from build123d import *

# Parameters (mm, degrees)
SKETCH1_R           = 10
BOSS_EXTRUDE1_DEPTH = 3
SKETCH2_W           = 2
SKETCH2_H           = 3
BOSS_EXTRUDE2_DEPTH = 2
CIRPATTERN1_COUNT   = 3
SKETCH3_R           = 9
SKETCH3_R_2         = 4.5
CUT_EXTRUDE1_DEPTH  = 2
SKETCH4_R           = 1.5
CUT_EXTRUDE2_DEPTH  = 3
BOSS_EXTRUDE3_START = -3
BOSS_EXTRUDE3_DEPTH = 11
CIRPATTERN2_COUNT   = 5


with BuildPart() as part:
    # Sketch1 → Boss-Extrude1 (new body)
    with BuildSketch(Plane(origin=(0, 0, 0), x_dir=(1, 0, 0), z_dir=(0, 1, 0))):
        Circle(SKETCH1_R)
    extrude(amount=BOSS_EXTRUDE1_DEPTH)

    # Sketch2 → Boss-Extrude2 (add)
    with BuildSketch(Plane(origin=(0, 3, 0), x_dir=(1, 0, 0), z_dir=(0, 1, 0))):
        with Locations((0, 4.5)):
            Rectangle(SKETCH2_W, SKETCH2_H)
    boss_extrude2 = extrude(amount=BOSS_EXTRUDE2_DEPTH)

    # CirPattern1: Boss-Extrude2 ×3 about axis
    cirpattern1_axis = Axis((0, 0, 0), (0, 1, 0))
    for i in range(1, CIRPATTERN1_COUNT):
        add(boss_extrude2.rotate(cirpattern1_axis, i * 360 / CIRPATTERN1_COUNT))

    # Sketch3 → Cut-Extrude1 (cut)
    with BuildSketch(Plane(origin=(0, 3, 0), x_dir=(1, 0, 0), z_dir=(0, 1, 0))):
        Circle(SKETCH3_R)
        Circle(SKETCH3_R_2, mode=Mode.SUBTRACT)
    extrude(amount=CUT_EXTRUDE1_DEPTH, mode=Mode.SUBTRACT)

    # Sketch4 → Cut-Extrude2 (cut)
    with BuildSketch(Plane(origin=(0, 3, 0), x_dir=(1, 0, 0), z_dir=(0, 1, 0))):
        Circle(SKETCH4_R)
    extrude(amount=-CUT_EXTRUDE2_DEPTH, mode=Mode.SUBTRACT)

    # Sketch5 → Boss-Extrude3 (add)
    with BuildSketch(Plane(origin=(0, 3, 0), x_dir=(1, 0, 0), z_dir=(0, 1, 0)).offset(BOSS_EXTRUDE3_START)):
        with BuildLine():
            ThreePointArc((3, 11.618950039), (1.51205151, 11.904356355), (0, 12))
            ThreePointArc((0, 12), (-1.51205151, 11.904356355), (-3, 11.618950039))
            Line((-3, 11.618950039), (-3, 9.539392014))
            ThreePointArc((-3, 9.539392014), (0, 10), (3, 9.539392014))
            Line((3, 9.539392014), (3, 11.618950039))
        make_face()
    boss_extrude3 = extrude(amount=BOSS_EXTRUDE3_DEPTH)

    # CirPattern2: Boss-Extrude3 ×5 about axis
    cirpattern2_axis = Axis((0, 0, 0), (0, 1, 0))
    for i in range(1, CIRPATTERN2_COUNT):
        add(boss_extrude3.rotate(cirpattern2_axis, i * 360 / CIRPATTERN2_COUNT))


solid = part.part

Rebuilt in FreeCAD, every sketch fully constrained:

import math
import FreeCAD as App
import Part
import Sketcher

doc = App.newDocument("Part")
body = doc.addObject("PartDesign::Body", "Body")

# Sketch on XZ plane
sketch1 = body.newObject("Sketcher::SketchObject", "Sketch")
sketch1.AttachmentSupport = (doc.getObject("XZ_Plane"), [""])
sketch1.MapMode = "FlatFace"
sketch1.addGeometry(Part.Circle(App.Vector(0, 0, 0), App.Vector(0, 0, 1), 10), False)
sketch1.addConstraint([
    Sketcher.Constraint("Coincident", 0, 3, -1, 1),
    Sketcher.Constraint("Diameter", 0, 20.0),
])
pad1 = body.newObject("PartDesign::Pad", "Pad")
pad1.Profile = sketch1
pad1.Length = 3
pad1.Reversed = True

# Sketch on XZ plane
sketch2 = body.newObject("Sketcher::SketchObject", "Sketch001")
sketch2.AttachmentSupport = (doc.getObject("XZ_Plane"), [""])
sketch2.MapMode = "FlatFace"
sketch2.AttachmentOffset = App.Placement(App.Vector(0, 0, -3), App.Rotation())
sketch2.addGeometry([
    Part.LineSegment(App.Vector(-1, -6, 0), App.Vector(-1, -3, 0)),
    Part.LineSegment(App.Vector(-1, -3, 0), App.Vector(1, -3, 0)),
    Part.LineSegment(App.Vector(1, -3, 0), App.Vector(1, -6, 0)),
    Part.LineSegment(App.Vector(1, -6, 0), App.Vector(-1, -6, 0)),
], False)
sketch2.addConstraint([
    Sketcher.Constraint("Coincident", 0, 2, 1, 1),
    Sketcher.Constraint("Coincident", 1, 2, 2, 1),
    Sketcher.Constraint("Coincident", 2, 2, 3, 1),
    Sketcher.Constraint("Coincident", 3, 2, 0, 1),
    Sketcher.Constraint("Vertical", 0),
    Sketcher.Constraint("Horizontal", 1),
    Sketcher.Constraint("Vertical", 2),
    Sketcher.Constraint("Horizontal", 3),
    Sketcher.Constraint("DistanceX", 1, 1, 1, 2, 2.0),
    Sketcher.Constraint("DistanceY", 0, 1, 0, 2, 3.0),
    Sketcher.Constraint("DistanceX", 0, 2, -1, 1, 1.0),
    Sketcher.Constraint("DistanceY", 0, 2, -1, 1, 3.0),
])
pad2 = body.newObject("PartDesign::Pad", "Pad001")
pad2.Profile = sketch2
pad2.Length = 2
pad2.Reversed = True
doc.recompute()

polarpattern = body.newObject("PartDesign::PolarPattern", "PolarPattern")
polarpattern.Originals = [pad2]
polarpattern.Axis = (doc.getObject("Y_Axis"), [""])
polarpattern.Angle = 360
polarpattern.Occurrences = 3
body.Tip = polarpattern

# Sketch on XZ plane
sketch3 = body.newObject("Sketcher::SketchObject", "Sketch002")
sketch3.AttachmentSupport = (doc.getObject("XZ_Plane"), [""])
sketch3.MapMode = "FlatFace"
sketch3.AttachmentOffset = App.Placement(App.Vector(0, 0, -3), App.Rotation())
sketch3.addGeometry([
    Part.Circle(App.Vector(0, 0, 0), App.Vector(0, 0, 1), 9),
    Part.Circle(App.Vector(0, 0, 0), App.Vector(0, 0, 1), 4.5),
], False)
sketch3.addConstraint([
    Sketcher.Constraint("Coincident", 0, 3, -1, 1),
    Sketcher.Constraint("Coincident", 1, 3, -1, 1),
    Sketcher.Constraint("Diameter", 0, 18.0),
    Sketcher.Constraint("Diameter", 1, 9.0),
])
pocket1 = body.newObject("PartDesign::Pocket", "Pocket")
pocket1.Profile = sketch3
pocket1.Length = 2

# Sketch on XZ plane
sketch4 = body.newObject("Sketcher::SketchObject", "Sketch003")
sketch4.AttachmentSupport = (doc.getObject("XZ_Plane"), [""])
sketch4.MapMode = "FlatFace"
sketch4.AttachmentOffset = App.Placement(App.Vector(0, 0, -3), App.Rotation())
sketch4.addGeometry(Part.Circle(App.Vector(0, 0, 0), App.Vector(0, 0, 1), 1.5), False)
sketch4.addConstraint([
    Sketcher.Constraint("Coincident", 0, 3, -1, 1),
    Sketcher.Constraint("Diameter", 0, 3.0),
])
pocket2 = body.newObject("PartDesign::Pocket", "Pocket001")
pocket2.Profile = sketch4
pocket2.Length = 3
pocket2.Reversed = True

# Sketch on XZ plane
sketch5 = body.newObject("Sketcher::SketchObject", "Sketch004")
sketch5.AttachmentSupport = (doc.getObject("XZ_Plane"), [""])
sketch5.MapMode = "FlatFace"
sketch5.addGeometry([
    Part.ArcOfCircle(Part.Circle(App.Vector(0, 0, 0), App.Vector(0, 0, 1), 12), math.radians(-90), math.radians(-75.52)),  # 0
    Part.ArcOfCircle(Part.Circle(App.Vector(0, 0, 0), App.Vector(0, 0, 1), 12), math.radians(-104.48), math.radians(-90)),  # 1
    Part.LineSegment(App.Vector(-3, -11.6, 0), App.Vector(-3, -9.5, 0)),  # 2
    Part.ArcOfCircle(Part.Circle(App.Vector(0, 0, 0), App.Vector(0, 0, 1), 10), math.radians(-107), math.radians(-73)),  # 3
    Part.LineSegment(App.Vector(3, -9.5, 0), App.Vector(3, -11.6, 0)),  # 4
], False)
sketch5.addConstraint([
    Sketcher.Constraint("Tangent", 0, 1, 1, 2),
    Sketcher.Constraint("Coincident", 1, 1, 2, 1),
    Sketcher.Constraint("Coincident", 2, 2, 3, 1),
    Sketcher.Constraint("Coincident", 3, 2, 4, 1),
    Sketcher.Constraint("Coincident", 4, 2, 0, 2),
    Sketcher.Constraint("Vertical", 2),
    Sketcher.Constraint("Vertical", 4),
    Sketcher.Constraint("Coincident", 0, 3, -1, 1),
    Sketcher.Constraint("Coincident", 3, 3, -1, 1),
    Sketcher.Constraint("Equal", 0, 1),
    Sketcher.Constraint("PointOnObject", 0, 1, -2),
    Sketcher.Constraint("Horizontal", 2, 2, 3, 2),
    Sketcher.Constraint("Radius", 0, 12.0),
    Sketcher.Constraint("Radius", 3, 10.0),
    Sketcher.Constraint("DistanceX", 1, 1, -1, 1, 3.0),
])
pad3 = body.newObject("PartDesign::Pad", "Pad002")
pad3.Profile = sketch5
pad3.Length = 11
pad3.Reversed = True
doc.recompute()

polarpattern2 = body.newObject("PartDesign::PolarPattern", "PolarPattern001")
polarpattern2.Originals = [pad3]
polarpattern2.Axis = (doc.getObject("Y_Axis"), [""])
polarpattern2.Angle = 360
polarpattern2.Occurrences = 5
body.Tip = polarpattern2

doc.recompute()
